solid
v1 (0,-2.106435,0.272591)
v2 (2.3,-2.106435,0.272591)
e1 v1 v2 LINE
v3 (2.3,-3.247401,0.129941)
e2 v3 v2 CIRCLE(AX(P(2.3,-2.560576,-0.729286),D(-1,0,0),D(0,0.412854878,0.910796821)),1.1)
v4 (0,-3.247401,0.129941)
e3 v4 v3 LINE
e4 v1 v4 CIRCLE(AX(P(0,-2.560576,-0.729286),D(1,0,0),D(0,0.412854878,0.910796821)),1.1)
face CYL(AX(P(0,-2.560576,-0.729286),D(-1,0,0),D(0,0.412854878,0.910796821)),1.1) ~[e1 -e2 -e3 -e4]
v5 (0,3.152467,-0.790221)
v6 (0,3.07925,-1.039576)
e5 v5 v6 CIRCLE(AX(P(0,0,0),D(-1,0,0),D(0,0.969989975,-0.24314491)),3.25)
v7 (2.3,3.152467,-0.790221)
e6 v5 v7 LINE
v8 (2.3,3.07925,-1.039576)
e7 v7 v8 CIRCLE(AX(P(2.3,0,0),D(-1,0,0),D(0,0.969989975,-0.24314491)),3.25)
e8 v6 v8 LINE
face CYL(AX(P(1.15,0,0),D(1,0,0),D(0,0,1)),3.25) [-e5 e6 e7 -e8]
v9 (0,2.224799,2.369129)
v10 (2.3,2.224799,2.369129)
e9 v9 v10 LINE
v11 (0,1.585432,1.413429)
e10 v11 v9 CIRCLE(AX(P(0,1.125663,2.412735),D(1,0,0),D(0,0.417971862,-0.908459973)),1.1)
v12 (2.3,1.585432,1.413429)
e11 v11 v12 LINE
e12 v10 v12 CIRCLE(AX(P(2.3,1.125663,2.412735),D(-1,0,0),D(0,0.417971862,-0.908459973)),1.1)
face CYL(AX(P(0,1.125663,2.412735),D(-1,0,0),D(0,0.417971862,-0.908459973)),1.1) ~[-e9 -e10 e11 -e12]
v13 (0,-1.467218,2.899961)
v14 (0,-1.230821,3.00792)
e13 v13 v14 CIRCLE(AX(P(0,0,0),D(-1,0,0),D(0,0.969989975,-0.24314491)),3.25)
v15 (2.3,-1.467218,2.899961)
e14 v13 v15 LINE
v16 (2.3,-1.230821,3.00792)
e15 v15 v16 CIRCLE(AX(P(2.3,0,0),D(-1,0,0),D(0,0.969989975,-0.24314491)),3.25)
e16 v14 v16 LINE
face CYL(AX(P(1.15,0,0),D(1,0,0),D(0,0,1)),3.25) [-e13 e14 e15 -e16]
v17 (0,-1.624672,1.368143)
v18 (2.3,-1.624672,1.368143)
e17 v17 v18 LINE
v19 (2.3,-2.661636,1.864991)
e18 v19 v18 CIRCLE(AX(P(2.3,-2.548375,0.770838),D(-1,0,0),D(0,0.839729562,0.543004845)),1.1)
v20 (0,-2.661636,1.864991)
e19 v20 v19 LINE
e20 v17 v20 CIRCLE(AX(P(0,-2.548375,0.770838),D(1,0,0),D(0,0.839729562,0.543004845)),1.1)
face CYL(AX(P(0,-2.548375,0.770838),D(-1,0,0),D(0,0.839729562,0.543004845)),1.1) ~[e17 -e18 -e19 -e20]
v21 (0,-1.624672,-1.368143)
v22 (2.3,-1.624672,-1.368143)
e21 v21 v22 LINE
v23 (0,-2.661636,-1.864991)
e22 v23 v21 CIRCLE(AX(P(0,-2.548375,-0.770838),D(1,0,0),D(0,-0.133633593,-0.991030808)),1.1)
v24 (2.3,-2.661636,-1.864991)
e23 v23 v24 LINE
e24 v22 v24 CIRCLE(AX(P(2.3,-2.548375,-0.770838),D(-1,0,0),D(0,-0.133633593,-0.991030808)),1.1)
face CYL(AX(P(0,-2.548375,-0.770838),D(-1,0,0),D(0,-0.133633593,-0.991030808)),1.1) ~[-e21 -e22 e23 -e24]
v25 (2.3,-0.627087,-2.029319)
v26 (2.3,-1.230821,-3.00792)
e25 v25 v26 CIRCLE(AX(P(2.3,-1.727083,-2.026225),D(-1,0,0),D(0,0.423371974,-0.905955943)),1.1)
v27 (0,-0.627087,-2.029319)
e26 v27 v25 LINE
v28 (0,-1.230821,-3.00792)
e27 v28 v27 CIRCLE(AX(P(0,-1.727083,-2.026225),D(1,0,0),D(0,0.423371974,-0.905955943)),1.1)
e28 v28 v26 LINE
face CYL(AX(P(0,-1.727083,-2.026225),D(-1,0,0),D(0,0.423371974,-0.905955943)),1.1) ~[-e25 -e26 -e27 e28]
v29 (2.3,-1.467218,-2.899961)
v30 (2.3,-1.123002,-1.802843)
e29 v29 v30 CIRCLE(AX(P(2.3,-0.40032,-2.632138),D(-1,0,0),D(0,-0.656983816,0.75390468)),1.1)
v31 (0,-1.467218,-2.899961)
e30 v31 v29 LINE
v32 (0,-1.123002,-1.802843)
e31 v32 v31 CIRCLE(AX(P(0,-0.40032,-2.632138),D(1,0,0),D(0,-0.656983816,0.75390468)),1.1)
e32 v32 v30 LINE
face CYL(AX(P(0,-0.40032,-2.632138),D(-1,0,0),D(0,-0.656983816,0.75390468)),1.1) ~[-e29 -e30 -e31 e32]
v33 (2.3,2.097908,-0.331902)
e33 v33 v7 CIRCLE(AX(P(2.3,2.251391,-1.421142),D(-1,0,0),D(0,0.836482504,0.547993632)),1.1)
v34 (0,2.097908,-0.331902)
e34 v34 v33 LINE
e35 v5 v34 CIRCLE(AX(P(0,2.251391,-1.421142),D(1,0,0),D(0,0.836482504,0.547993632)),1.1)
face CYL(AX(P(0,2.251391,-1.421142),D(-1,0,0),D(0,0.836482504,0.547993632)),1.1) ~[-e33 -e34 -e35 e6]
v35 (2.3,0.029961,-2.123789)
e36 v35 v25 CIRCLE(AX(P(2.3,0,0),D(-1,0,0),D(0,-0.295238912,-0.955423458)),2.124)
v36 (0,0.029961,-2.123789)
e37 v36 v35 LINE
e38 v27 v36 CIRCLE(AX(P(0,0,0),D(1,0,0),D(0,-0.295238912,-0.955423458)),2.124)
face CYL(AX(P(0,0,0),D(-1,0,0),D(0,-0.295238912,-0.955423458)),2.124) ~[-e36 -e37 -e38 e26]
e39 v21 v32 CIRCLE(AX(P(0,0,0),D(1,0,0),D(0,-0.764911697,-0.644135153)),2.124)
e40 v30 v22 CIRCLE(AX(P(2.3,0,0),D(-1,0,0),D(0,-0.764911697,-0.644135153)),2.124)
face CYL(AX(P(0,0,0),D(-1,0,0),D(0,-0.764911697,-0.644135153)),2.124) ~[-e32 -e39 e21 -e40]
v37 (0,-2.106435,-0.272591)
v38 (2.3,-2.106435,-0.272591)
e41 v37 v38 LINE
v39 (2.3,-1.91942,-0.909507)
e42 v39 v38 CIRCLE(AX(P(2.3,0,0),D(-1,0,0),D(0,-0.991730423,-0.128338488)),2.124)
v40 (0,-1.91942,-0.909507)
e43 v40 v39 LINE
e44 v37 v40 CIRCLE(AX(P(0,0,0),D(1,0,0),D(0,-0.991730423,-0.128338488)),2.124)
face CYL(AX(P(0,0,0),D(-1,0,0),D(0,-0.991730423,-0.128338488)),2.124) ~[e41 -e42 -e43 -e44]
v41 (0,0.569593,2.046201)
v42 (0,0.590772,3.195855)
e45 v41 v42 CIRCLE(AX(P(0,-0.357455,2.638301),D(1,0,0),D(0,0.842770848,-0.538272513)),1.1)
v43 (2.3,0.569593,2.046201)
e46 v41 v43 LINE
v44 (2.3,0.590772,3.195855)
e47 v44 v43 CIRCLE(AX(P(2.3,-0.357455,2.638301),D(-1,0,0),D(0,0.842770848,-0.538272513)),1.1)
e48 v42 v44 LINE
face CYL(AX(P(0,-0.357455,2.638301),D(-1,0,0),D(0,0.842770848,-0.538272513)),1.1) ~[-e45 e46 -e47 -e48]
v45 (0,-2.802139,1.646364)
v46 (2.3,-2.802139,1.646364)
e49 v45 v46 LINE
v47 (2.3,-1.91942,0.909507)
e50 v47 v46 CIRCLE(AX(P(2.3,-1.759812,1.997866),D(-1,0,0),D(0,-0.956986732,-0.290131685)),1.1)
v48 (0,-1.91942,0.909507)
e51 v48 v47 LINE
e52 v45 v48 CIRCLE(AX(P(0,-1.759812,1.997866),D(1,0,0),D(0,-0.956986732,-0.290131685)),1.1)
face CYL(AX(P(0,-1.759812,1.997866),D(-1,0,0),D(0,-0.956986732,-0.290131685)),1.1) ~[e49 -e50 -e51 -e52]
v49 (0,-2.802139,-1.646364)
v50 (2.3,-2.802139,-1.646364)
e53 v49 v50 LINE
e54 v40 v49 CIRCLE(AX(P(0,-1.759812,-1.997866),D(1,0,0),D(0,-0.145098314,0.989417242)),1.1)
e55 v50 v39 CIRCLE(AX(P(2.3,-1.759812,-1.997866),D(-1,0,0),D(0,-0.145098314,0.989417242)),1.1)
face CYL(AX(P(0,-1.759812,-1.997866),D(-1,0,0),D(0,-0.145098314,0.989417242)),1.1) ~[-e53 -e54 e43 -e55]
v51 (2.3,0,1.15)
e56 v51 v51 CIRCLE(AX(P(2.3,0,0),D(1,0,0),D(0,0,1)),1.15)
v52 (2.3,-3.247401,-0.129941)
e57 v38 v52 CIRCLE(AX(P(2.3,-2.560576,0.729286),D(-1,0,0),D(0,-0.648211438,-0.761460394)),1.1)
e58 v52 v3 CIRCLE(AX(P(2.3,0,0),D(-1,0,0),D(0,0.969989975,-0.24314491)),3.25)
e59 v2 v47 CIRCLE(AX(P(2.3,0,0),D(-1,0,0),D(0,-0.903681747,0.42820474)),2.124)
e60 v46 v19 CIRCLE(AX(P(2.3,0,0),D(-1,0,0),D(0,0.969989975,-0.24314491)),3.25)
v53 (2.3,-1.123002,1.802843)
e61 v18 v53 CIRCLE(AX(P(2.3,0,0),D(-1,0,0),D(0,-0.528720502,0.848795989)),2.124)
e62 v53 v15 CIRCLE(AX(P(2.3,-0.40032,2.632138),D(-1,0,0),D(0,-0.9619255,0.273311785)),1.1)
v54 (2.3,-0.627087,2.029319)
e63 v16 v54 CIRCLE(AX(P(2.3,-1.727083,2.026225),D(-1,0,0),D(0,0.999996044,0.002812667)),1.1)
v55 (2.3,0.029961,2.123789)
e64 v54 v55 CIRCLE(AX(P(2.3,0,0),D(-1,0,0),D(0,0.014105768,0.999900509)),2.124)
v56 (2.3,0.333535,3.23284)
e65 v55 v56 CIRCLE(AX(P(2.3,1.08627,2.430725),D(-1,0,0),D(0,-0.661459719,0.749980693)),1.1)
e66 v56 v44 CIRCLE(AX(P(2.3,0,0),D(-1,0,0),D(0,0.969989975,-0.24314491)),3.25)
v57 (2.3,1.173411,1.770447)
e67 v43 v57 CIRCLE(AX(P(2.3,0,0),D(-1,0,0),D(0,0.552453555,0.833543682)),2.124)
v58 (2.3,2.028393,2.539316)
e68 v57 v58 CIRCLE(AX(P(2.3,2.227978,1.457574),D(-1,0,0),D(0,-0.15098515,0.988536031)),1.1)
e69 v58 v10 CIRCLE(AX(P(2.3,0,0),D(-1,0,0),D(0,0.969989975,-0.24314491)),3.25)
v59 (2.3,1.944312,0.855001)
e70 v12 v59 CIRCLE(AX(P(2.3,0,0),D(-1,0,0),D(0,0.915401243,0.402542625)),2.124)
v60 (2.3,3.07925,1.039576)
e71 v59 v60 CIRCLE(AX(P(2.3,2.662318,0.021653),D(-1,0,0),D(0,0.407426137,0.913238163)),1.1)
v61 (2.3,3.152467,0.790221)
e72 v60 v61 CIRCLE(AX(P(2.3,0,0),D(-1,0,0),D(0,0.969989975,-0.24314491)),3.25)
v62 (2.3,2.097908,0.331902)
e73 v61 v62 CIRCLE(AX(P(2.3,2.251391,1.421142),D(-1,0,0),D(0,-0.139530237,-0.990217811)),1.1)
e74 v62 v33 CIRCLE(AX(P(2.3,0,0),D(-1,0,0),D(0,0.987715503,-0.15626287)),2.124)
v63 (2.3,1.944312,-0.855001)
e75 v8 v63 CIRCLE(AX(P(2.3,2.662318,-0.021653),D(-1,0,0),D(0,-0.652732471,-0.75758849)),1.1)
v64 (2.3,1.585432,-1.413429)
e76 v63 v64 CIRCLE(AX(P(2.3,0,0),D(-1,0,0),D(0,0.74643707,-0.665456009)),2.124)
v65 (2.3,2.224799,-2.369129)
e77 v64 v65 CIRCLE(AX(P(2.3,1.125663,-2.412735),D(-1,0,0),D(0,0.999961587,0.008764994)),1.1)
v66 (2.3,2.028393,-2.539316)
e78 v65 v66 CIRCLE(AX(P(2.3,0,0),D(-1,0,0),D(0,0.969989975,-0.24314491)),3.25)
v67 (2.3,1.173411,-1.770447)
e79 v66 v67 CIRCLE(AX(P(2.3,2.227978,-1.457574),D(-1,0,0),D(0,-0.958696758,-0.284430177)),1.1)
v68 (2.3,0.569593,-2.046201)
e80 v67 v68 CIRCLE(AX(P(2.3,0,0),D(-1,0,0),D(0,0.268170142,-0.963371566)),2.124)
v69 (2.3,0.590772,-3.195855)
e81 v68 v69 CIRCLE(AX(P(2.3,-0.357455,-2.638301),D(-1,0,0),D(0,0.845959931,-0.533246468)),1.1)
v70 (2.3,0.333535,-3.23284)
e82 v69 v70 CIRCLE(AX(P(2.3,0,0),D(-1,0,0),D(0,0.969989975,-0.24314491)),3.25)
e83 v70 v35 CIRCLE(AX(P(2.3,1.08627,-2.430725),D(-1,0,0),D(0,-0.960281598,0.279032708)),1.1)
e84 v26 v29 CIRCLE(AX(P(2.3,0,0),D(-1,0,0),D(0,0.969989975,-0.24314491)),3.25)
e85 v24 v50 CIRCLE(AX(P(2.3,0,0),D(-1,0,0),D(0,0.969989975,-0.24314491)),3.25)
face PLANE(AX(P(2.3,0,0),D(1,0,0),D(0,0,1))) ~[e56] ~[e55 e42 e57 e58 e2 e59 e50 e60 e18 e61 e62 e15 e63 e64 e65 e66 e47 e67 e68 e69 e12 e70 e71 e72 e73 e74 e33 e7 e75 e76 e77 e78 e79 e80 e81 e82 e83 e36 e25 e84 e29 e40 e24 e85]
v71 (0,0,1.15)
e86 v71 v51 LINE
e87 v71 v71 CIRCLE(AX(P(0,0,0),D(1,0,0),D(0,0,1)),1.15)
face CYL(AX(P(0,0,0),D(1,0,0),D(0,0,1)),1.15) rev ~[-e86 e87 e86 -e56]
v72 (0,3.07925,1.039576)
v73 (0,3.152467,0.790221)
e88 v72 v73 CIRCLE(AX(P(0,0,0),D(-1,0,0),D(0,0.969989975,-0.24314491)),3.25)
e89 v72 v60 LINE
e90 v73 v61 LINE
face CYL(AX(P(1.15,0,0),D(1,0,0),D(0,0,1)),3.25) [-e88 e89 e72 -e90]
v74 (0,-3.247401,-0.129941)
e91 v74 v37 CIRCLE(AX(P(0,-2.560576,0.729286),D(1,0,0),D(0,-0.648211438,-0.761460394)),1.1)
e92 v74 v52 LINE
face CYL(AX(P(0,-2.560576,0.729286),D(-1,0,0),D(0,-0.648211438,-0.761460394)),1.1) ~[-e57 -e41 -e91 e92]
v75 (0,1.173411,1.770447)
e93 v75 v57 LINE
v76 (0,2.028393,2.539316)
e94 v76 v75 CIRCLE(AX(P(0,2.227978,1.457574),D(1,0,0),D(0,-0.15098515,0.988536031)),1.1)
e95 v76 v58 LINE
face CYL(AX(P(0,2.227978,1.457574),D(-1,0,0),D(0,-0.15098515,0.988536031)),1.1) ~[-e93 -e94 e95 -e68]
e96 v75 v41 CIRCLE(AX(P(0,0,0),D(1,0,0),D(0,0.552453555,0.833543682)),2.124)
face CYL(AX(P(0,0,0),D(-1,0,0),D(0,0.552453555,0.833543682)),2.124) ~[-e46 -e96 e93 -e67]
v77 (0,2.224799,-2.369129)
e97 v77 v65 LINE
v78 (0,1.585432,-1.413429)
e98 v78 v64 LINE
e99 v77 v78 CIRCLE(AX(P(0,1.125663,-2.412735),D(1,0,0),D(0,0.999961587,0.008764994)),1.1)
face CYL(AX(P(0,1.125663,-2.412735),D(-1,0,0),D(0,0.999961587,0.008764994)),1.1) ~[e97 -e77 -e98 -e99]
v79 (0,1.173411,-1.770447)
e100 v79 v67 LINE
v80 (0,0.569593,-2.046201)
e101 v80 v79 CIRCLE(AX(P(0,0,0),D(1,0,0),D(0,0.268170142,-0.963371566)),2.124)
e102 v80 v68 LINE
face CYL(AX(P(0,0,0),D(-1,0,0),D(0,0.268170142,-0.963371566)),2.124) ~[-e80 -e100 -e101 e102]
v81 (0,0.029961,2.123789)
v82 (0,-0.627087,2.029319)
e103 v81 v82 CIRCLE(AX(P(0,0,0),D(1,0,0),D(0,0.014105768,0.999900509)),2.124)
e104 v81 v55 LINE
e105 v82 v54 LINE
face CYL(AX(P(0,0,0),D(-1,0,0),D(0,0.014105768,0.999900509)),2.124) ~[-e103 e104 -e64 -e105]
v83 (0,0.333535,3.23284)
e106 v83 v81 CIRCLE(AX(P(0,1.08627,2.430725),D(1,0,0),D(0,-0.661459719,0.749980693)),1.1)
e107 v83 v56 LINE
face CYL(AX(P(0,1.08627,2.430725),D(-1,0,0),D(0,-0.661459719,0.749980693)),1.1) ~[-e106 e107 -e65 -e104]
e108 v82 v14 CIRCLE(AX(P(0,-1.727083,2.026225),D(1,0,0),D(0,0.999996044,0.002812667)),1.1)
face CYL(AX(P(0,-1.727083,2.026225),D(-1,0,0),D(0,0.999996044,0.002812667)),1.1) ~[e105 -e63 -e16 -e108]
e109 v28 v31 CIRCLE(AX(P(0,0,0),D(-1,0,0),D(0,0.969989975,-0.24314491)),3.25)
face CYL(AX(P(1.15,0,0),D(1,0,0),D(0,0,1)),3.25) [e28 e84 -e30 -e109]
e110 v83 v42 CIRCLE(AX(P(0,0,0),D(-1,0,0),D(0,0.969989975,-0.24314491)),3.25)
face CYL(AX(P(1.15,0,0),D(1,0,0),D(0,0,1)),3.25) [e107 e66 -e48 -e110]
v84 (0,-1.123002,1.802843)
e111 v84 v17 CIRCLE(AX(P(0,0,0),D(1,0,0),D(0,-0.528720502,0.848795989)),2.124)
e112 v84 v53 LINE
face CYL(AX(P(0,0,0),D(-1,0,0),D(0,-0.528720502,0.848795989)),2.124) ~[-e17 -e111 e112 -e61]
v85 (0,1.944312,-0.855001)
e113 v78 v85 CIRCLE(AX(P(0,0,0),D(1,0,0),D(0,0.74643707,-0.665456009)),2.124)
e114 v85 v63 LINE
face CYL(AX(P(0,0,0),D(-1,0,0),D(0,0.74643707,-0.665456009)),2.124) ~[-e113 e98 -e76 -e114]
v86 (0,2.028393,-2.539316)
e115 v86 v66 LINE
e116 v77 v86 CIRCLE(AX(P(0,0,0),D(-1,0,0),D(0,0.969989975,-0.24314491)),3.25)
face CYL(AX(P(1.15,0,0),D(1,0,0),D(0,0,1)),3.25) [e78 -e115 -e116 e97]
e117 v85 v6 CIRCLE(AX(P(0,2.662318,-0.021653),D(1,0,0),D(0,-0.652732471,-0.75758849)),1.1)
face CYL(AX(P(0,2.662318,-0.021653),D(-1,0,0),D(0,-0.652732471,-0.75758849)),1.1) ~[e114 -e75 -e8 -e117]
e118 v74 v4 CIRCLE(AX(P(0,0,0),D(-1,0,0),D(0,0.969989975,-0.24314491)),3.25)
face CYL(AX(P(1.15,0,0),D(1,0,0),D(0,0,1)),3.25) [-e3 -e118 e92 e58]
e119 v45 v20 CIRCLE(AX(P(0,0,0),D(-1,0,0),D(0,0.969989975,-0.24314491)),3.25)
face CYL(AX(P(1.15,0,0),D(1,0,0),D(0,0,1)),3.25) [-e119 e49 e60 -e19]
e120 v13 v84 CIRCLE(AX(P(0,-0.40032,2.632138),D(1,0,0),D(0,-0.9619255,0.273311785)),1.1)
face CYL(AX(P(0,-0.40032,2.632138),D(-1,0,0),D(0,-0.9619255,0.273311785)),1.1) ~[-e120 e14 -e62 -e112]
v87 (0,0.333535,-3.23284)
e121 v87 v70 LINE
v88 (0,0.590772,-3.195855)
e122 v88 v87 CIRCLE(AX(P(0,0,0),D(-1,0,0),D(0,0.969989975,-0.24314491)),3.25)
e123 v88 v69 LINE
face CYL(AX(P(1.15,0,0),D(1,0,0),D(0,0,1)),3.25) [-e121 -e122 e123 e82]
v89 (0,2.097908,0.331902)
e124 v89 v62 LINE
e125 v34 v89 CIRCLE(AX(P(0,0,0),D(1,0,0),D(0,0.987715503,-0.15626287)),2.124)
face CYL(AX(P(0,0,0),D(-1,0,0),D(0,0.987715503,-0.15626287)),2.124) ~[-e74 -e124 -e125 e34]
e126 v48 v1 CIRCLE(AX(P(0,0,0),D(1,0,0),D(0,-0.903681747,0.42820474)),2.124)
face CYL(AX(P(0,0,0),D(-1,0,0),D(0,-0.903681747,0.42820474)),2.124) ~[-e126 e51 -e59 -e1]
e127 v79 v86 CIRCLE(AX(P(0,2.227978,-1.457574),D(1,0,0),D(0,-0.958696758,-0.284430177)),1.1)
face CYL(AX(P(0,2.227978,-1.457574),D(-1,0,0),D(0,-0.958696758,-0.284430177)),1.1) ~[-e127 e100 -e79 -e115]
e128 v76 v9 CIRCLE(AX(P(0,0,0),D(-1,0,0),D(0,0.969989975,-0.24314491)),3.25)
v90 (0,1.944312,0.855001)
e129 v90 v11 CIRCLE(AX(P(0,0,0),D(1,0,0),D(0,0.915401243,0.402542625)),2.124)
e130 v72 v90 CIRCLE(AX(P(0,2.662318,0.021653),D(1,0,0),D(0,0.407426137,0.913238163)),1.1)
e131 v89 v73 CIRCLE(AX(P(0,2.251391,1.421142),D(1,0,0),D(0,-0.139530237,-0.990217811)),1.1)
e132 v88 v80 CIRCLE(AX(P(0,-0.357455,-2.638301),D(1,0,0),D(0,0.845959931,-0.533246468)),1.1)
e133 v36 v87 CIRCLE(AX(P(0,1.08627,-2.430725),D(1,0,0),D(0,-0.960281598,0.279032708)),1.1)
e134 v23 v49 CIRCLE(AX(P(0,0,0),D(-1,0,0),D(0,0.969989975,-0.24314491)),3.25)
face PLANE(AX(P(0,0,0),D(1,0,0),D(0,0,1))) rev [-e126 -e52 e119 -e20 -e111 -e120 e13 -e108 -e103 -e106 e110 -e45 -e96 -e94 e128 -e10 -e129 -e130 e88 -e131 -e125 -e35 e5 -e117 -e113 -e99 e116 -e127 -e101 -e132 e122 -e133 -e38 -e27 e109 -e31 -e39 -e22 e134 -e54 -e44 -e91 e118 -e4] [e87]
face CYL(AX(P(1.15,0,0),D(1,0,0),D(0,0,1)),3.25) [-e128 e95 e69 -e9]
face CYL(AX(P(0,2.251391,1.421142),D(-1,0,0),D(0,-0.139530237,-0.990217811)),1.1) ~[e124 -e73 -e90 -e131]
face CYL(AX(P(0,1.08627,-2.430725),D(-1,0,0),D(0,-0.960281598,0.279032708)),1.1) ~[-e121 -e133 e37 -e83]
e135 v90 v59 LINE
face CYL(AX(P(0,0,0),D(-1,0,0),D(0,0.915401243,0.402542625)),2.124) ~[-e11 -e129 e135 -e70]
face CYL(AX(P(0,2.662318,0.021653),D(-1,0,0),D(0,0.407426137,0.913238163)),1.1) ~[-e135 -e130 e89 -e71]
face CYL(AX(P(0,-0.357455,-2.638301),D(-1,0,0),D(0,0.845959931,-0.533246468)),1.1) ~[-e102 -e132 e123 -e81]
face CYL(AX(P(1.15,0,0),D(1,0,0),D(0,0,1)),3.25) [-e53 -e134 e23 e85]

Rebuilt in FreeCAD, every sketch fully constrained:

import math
import FreeCAD as App
import Part
import Sketcher
from FreeCAD import Vector
Q = App.Units.Quantity


def add_polygon(sketch, points):
    """Adds a closed chain of lines whose ends are joined by coincident constraints."""
    first, n = sketch.GeometryCount, len(points)
    for a, b in zip(points, points[1:] + points[:1]):
        sketch.addGeometry(Part.LineSegment(App.Vector(*a, 0), App.Vector(*b, 0)), False)
    for i in range(n):
        sketch.addConstraint(Sketcher.Constraint("Coincident", first + i, 2, first + (i + 1) % n, 1))

doc = App.newDocument("Part")
body = doc.addObject("PartDesign::Body", "Body")

sketch1 = body.newObject("Sketcher::SketchObject", "Sketch")
sketch1.AttachmentSupport = (doc.getObject("XZ_Plane"), [""])
sketch1.MapMode = "FlatFace"
add_polygon(sketch1, [(0, -3.25), (0, 0), (2.3, 0), (2.3, -3.25)])
sketch1.addConstraint(Sketcher.Constraint("Vertical", 0))
sketch1.addConstraint(Sketcher.Constraint("Horizontal", 1))
sketch1.addConstraint(Sketcher.Constraint("Vertical", 2))
sketch1.addConstraint(Sketcher.Constraint("Horizontal", 3))
sketch1.addConstraint(Sketcher.Constraint("Coincident", 0, 2, -1, 1))
sketch1.addConstraint(Sketcher.Constraint("DistanceX", 1, 1, 1, 2, Q("2.3 mm")))
sketch1.addConstraint(Sketcher.Constraint("DistanceY", 0, 1, 0, 2, Q("3.25 mm")))
revolution = body.newObject("PartDesign::Revolution", "Revolution")
revolution.Profile = sketch1
revolution.ReferenceAxis = (sketch1, ["H_Axis"])
revolution.Angle = 360

sketch2 = body.newObject("Sketcher::SketchObject", "Sketch001")
sketch2.AttachmentSupport = (doc.getObject("YZ_Plane"), [""])
sketch2.MapMode = "FlatFace"
sketch2.addGeometry(Part.ArcOfCircle(Part.Circle(Vector(0, 0, 0), Vector(0, 0, 1), 2.124), math.radians(-8.990046), math.radians(8.990046)), False)
sketch2.addGeometry(Part.ArcOfCircle(Part.Circle(Vector(2.251391, -1.421142, 0), Vector(0, 0, 1), 1.1), math.radians(33.229476), math.radians(98.020664)), False)
sketch2.addGeometry(Part.ArcOfCircle(Part.Circle(Vector(0, 0, 0), Vector(0, 0, 1), 3.2754), math.radians(-14.46846), math.radians(14.46846)), False)
sketch2.addGeometry(Part.ArcOfCircle(Part.Circle(Vector(2.251391, 1.421142, 0), Vector(0, 0, 1), 1.1), math.radians(-98.020664), math.radians(-33.229476)), False)
sketch2.addConstraint(Sketcher.Constraint("Coincident", 0, 1, 1, 2))
sketch2.addConstraint(Sketcher.Constraint("Coincident", 1, 1, 2, 1))
sketch2.addConstraint(Sketcher.Constraint("Coincident", 2, 2, 3, 2))
sketch2.addConstraint(Sketcher.Constraint("Coincident", 3, 1, 0, 2))
sketch2.addConstraint(Sketcher.Constraint("Coincident", 0, 3, -1, 1))
sketch2.addConstraint(Sketcher.Constraint("Coincident", 2, 3, -1, 1))
sketch2.addConstraint(Sketcher.Constraint("Equal", 1, 3))
sketch2.addConstraint(Sketcher.Constraint("Symmetric", 1, 3, 3, 3, -1))
sketch2.addConstraint(Sketcher.Constraint("Radius", 1, Q("1.1 mm")))
sketch2.addConstraint(Sketcher.Constraint("Radius", 0, Q("2.124 mm")))
sketch2.addConstraint(Sketcher.Constraint("Radius", 2, Q("3.2754 mm")))
sketch2.addConstraint(Sketcher.Constraint("DistanceX", -1, 1, 1, 3, Q("2.251391 mm")))
sketch2.addConstraint(Sketcher.Constraint("DistanceY", 1, 3, -1, 1, Q("1.421142 mm")))
pocket1 = body.newObject("PartDesign::Pocket", "Pocket")
pocket1.Profile = sketch2
pocket1.Type = "ThroughAll"
pocket1.Reversed = True
doc.recompute()

polarpattern = body.newObject("PartDesign::PolarPattern", "PolarPattern")
polarpattern.Originals = [pocket1]
polarpattern.Axis = (doc.getObject("X_Axis"), [""])
polarpattern.Angle = 360
polarpattern.Occurrences = 11
body.Tip = polarpattern

sketch3 = body.newObject("Sketcher::SketchObject", "Sketch002")
sketch3.AttachmentSupport = (doc.getObject("YZ_Plane"), [""])
sketch3.MapMode = "FlatFace"
sketch3.addGeometry(Part.Circle(Vector(0, 0, 0), Vector(0, 0, 1), 1.15), False)
sketch3.addConstraint(Sketcher.Constraint("Coincident", 0, 3, -1, 1))
sketch3.addConstraint(Sketcher.Constraint("Diameter", 0, Q("2.3 mm")))
pocket2 = body.newObject("PartDesign::Pocket", "Pocket001")
pocket2.Profile = sketch3
pocket2.Length = 100.001016
pocket2.Midplane = True

doc.recompute()
